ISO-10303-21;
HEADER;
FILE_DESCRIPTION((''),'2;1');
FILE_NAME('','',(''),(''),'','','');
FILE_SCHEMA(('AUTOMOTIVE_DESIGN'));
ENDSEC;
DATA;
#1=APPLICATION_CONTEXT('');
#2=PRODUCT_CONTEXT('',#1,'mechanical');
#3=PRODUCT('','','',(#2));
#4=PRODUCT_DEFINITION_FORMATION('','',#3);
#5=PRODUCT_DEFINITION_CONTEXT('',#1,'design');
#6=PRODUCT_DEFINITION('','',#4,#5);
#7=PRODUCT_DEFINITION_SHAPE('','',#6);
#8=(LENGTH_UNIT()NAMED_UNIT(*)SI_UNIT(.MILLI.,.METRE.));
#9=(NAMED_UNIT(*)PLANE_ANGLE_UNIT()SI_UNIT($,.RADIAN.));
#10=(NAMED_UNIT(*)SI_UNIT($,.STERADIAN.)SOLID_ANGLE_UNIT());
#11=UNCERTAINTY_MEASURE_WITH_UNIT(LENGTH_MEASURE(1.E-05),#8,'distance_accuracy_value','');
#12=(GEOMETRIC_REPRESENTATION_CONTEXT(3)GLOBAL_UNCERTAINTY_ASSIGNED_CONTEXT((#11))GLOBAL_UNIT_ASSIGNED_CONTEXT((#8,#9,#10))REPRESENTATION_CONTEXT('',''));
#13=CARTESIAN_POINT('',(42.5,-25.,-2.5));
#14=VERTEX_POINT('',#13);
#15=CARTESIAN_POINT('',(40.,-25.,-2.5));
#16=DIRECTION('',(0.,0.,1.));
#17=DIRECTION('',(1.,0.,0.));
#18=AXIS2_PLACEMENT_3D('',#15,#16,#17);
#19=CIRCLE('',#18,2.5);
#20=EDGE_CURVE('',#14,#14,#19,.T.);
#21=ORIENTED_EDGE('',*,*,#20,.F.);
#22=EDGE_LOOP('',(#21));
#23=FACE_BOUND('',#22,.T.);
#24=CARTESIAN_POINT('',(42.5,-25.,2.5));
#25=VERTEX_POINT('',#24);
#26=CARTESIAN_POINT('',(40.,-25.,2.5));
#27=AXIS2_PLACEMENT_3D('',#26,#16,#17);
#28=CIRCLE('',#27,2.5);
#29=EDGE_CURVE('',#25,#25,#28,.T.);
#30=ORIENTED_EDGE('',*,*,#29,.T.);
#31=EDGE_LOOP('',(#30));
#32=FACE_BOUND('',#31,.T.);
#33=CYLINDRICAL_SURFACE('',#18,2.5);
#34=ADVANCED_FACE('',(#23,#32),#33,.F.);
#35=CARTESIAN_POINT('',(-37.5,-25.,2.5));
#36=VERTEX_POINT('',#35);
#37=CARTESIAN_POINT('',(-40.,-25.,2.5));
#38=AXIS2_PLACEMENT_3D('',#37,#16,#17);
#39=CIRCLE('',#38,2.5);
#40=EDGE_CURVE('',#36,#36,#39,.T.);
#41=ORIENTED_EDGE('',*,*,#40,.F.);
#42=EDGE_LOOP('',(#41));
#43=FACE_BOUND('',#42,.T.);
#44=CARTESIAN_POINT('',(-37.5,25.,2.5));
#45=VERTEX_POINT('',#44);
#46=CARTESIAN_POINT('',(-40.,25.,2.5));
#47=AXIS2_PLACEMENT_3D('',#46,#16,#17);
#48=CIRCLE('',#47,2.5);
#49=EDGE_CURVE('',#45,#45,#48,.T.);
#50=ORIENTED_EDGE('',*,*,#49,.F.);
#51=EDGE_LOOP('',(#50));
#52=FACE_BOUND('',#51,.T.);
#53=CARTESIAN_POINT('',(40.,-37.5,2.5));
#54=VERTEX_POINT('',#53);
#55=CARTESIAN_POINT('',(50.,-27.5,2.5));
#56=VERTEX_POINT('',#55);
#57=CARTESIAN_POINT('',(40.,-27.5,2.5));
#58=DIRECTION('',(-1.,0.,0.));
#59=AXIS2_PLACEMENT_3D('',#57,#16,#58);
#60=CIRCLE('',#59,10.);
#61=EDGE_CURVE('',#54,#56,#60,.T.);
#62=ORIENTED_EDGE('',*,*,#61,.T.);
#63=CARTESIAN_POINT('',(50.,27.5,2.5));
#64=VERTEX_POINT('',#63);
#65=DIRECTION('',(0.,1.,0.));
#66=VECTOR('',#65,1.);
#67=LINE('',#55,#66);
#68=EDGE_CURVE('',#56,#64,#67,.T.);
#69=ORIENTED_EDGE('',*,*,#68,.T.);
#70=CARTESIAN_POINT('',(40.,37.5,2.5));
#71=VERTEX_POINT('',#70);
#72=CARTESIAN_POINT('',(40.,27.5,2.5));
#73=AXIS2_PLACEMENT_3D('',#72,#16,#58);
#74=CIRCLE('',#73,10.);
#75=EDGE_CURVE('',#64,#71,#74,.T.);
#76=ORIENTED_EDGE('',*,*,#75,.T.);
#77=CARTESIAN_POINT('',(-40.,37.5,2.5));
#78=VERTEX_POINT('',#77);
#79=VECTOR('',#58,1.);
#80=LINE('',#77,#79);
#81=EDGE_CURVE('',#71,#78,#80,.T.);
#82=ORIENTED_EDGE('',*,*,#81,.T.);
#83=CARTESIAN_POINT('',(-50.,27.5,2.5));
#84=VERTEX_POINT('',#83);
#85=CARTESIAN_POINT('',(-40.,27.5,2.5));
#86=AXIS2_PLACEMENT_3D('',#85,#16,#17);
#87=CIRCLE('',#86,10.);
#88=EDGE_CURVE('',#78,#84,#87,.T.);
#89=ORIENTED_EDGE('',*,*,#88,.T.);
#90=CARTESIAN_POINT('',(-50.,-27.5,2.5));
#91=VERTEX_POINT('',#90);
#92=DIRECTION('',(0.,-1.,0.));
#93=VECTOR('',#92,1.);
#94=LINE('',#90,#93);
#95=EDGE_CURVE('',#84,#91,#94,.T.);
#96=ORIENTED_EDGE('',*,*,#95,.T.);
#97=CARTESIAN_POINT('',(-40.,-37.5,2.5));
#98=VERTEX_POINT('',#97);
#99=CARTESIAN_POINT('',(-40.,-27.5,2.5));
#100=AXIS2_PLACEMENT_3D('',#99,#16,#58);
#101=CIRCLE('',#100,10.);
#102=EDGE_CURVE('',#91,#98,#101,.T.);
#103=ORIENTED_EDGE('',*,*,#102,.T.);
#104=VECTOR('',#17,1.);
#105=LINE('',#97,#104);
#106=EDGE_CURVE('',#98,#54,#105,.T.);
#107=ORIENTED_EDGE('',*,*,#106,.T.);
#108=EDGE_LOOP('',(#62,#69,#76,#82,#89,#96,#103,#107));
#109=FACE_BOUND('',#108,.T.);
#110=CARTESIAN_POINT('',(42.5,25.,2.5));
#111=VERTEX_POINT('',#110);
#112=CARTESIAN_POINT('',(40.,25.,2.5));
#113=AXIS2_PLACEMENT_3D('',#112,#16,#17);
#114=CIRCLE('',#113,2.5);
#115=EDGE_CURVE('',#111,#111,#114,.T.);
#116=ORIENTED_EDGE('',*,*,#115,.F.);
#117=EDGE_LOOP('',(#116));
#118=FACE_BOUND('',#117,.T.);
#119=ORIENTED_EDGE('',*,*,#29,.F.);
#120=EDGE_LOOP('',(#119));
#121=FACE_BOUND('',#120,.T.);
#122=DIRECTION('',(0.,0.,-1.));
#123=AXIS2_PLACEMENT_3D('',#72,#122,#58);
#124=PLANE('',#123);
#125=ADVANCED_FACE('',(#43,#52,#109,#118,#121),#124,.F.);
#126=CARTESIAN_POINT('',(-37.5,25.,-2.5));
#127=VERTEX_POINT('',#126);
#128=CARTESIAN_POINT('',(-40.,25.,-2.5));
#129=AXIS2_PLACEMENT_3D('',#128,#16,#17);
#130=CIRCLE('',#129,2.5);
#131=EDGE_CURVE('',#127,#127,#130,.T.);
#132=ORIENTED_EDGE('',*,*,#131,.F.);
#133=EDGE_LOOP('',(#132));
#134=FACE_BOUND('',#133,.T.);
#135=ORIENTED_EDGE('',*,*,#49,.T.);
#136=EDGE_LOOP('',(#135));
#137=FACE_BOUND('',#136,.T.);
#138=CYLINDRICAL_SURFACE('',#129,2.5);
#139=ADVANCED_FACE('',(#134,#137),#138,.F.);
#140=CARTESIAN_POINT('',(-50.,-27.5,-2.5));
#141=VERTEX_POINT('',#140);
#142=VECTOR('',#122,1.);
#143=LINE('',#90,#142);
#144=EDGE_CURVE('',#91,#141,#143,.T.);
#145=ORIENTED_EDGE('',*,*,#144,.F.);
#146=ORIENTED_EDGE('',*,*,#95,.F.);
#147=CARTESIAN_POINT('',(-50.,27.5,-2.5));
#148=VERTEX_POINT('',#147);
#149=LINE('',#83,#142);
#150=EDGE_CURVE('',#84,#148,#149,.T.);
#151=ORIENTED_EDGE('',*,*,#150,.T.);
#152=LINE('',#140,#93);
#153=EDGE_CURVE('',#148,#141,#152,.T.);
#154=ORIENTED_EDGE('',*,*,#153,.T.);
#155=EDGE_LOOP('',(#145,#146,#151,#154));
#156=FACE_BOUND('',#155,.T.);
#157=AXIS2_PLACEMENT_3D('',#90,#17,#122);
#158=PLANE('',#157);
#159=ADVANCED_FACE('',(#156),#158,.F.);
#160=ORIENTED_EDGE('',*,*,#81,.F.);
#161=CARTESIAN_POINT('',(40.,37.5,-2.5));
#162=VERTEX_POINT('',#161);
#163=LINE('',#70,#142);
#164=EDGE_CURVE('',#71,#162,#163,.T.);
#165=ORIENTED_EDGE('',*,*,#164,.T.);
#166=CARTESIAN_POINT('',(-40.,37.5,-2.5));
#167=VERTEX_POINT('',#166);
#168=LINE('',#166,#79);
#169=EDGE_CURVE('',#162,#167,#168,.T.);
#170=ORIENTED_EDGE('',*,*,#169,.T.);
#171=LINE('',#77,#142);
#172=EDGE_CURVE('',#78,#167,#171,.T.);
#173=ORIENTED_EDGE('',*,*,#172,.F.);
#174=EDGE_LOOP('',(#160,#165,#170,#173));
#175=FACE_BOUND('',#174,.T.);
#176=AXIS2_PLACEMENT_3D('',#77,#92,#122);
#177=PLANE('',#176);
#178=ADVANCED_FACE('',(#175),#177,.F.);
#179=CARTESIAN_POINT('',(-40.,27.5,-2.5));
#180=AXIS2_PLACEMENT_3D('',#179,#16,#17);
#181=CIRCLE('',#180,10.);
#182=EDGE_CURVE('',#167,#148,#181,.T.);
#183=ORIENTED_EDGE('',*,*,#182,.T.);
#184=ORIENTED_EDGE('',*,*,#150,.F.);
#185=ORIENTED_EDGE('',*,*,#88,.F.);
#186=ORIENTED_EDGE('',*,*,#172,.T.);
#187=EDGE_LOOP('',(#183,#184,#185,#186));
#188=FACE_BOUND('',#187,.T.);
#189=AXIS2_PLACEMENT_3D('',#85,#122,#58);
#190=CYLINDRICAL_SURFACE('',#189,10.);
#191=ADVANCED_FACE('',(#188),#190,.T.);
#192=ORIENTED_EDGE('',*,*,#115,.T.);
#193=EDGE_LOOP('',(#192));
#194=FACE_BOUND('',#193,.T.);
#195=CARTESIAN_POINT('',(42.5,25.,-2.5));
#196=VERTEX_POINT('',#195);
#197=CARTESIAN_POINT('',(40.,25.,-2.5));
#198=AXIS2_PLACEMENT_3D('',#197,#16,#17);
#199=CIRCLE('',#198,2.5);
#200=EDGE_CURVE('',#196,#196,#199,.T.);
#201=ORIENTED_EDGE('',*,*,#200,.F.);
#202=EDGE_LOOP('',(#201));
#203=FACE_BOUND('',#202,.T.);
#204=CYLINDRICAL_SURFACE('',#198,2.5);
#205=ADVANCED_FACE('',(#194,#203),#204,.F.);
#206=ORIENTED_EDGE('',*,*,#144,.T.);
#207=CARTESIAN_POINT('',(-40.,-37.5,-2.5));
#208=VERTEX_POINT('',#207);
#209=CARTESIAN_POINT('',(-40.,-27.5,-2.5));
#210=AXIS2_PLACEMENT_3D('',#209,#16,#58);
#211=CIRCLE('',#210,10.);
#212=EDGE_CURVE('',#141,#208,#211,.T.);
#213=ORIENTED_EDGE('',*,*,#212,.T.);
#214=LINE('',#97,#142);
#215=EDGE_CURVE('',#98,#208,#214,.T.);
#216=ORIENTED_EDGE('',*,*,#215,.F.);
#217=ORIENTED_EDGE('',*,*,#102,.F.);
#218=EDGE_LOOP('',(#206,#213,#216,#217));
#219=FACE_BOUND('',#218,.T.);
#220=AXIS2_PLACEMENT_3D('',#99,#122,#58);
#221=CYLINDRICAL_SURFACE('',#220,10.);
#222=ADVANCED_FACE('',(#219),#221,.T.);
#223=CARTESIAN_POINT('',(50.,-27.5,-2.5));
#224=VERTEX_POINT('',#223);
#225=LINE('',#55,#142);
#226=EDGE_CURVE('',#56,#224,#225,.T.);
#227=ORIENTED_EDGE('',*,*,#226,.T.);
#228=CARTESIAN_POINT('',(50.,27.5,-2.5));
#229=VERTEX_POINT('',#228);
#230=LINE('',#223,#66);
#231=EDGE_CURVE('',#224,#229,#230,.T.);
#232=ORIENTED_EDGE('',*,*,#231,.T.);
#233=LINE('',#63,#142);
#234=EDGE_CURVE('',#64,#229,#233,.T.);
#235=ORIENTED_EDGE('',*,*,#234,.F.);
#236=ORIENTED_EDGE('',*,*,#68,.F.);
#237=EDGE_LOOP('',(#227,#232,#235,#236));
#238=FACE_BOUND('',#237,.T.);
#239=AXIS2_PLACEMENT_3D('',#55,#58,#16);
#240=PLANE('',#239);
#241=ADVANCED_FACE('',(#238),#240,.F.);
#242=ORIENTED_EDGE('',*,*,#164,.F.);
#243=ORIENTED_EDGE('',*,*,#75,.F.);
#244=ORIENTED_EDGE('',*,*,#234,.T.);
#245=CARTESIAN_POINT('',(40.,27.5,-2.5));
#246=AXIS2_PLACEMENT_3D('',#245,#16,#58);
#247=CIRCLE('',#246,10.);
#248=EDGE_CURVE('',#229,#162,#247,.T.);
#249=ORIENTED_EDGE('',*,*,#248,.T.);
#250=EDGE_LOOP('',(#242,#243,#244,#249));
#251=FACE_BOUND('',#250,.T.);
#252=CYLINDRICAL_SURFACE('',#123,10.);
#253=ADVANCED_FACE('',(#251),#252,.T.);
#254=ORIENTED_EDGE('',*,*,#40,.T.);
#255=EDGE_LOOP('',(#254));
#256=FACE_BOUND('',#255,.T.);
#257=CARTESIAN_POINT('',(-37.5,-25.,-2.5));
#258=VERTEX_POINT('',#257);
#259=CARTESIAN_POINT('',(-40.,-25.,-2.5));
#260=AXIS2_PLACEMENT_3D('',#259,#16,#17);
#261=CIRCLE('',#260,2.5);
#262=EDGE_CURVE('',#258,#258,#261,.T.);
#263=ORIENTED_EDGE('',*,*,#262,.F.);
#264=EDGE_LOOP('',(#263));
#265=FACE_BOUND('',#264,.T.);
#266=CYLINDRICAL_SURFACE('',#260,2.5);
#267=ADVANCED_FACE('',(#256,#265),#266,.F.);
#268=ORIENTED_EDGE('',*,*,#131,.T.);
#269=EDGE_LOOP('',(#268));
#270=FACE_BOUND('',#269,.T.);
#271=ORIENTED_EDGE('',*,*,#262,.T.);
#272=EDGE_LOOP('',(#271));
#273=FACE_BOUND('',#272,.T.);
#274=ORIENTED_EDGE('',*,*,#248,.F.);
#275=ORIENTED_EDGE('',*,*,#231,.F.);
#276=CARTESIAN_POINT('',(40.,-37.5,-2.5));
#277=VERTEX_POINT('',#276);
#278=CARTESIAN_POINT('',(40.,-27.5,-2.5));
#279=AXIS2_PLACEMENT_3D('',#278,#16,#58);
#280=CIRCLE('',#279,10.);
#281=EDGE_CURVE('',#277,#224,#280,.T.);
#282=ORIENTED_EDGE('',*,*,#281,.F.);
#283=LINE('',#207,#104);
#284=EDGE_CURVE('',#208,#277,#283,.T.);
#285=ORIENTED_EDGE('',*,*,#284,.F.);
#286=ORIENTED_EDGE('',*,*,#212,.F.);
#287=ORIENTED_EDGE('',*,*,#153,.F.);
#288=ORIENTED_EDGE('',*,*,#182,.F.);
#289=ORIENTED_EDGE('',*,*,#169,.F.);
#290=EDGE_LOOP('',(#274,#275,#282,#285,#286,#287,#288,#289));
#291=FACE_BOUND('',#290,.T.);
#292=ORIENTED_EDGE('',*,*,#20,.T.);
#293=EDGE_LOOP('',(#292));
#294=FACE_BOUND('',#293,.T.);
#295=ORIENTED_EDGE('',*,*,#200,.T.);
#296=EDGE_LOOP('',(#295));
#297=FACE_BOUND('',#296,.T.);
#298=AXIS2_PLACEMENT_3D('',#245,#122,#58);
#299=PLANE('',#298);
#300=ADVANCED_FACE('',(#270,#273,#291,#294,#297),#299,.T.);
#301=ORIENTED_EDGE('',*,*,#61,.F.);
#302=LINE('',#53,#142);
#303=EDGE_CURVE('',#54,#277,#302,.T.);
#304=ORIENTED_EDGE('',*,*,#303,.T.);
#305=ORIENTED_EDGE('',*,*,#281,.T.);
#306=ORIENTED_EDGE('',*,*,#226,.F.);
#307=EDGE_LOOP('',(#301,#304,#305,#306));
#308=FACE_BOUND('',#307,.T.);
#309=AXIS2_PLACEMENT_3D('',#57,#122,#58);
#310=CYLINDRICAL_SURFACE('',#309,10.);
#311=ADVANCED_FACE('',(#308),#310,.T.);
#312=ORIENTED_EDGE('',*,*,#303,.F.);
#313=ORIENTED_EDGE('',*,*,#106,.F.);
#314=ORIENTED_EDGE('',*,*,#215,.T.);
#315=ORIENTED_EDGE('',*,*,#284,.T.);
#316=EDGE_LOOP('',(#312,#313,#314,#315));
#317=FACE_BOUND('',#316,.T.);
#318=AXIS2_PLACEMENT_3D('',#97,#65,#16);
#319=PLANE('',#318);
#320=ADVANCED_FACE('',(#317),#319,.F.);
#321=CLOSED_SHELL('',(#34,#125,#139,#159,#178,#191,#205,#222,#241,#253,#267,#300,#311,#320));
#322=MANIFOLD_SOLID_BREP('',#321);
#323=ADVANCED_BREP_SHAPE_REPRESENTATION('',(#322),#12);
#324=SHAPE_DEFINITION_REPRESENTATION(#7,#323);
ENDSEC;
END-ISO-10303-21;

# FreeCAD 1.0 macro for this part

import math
import FreeCAD as App
import Part
import Sketcher
from FreeCAD import Vector

doc = App.newDocument("Part")
body = doc.addObject("PartDesign::Body", "Body")

sketch1 = body.newObject("Sketcher::SketchObject", "Sketch")
sketch1.AttachmentSupport = (doc.getObject("XY_Plane"), [""])
sketch1.MapMode = "FlatFace"
sketch1.addGeometry(Part.LineSegment(Vector(-40, -38, 0), Vector(40, -38, 0)), False)
sketch1.addGeometry(Part.ArcOfCircle(Part.Circle(Vector(40, -28, 0), Vector(0, 0, 1), 10), math.radians(-90), math.radians(0)), False)
sketch1.addGeometry(Part.LineSegment(Vector(50, -28, 0), Vector(50, 28, 0)), False)
sketch1.addGeometry(Part.ArcOfCircle(Part.Circle(Vector(40, 28, 0), Vector(0, 0, 1), 10), math.radians(0), math.radians(90)), False)
sketch1.addGeometry(Part.LineSegment(Vector(40, 38, 0), Vector(-40, 38, 0)), False)
sketch1.addGeometry(Part.ArcOfCircle(Part.Circle(Vector(-40, 28, 0), Vector(0, 0, 1), 10), math.radians(90), math.radians(180)), False)
sketch1.addGeometry(Part.LineSegment(Vector(-50, 28, 0), Vector(-50, -28, 0)), False)
sketch1.addGeometry(Part.ArcOfCircle(Part.Circle(Vector(-40, -28, 0), Vector(0, 0, 1), 10), math.radians(180), math.radians(270)), False)
sketch1.addGeometry(Part.Circle(Vector(0, 0, 0), Vector(0, 0, 1), 12), False)
sketch1.addConstraint(Sketcher.Constraint("Tangent", 0, 2, 1, 1))
sketch1.addConstraint(Sketcher.Constraint("Tangent", 1, 2, 2, 1))
sketch1.addConstraint(Sketcher.Constraint("Tangent", 2, 2, 3, 1))
sketch1.addConstraint(Sketcher.Constraint("Tangent", 3, 2, 4, 1))
sketch1.addConstraint(Sketcher.Constraint("Tangent", 4, 2, 5, 1))
sketch1.addConstraint(Sketcher.Constraint("Tangent", 5, 2, 6, 1))
sketch1.addConstraint(Sketcher.Constraint("Tangent", 6, 2, 7, 1))
sketch1.addConstraint(Sketcher.Constraint("Tangent", 7, 2, 0, 1))
sketch1.addConstraint(Sketcher.Constraint("Horizontal", 0))
sketch1.addConstraint(Sketcher.Constraint("Vertical", 2))
sketch1.addConstraint(Sketcher.Constraint("Horizontal", 4))
sketch1.addConstraint(Sketcher.Constraint("Vertical", 6))
sketch1.addConstraint(Sketcher.Constraint("Coincident", 8, 3, -1, 1))
sketch1.addConstraint(Sketcher.Constraint("Equal", 1, 3))
sketch1.addConstraint(Sketcher.Constraint("Equal", 3, 5))
sketch1.addConstraint(Sketcher.Constraint("Equal", 5, 7))
sketch1.addConstraint(Sketcher.Constraint("Symmetric", 1, 3, 5, 3, -1, 1))
sketch1.addConstraint(Sketcher.Constraint("Diameter", 8, 25.0))
sketch1.addConstraint(Sketcher.Constraint("Radius", 1, 10.0))
sketch1.addConstraint(Sketcher.Constraint("DistanceX", 0, 1, 0, 2, 80.0))
sketch1.addConstraint(Sketcher.Constraint("DistanceY", 2, 1, 2, 2, 55.0))
pad1 = body.newObject("PartDesign::Pad", "Pad")
pad1.Profile = sketch1
pad1.Length = 5
pad1.Midplane = True

sketch2 = body.newObject("Sketcher::SketchObject", "Sketch001")
sketch2.AttachmentSupport = (doc.getObject("XY_Plane"), [""])
sketch2.MapMode = "FlatFace"
sketch2.AttachmentOffset = App.Placement(Vector(0, 0, 2.5), App.Rotation())
sketch2.addGeometry(Part.Circle(Vector(40, 25, 0), Vector(0, 0, 1), 2.5), False)
sketch2.addGeometry(Part.Circle(Vector(-40, 25, 0), Vector(0, 0, 1), 2.5), False)
sketch2.addGeometry(Part.Circle(Vector(-40, -25, 0), Vector(0, 0, 1), 2.5), False)
sketch2.addGeometry(Part.Circle(Vector(40, -25, 0), Vector(0, 0, 1), 2.5), False)
sketch2.addConstraint(Sketcher.Constraint("Equal", 0, 1))
sketch2.addConstraint(Sketcher.Constraint("Equal", 1, 2))
sketch2.addConstraint(Sketcher.Constraint("Equal", 2, 3))
sketch2.addConstraint(Sketcher.Constraint("Symmetric", 0, 3, 2, 3, -1, 1))
sketch2.addConstraint(Sketcher.Constraint("Symmetric", 1, 3, 3, 3, -1, 1))
sketch2.addConstraint(Sketcher.Constraint("Symmetric", 0, 3, 1, 3, -2))
sketch2.addConstraint(Sketcher.Constraint("Diameter", 0, 5.0))
sketch2.addConstraint(Sketcher.Constraint("DistanceX", -1, 1, 0, 3, 40.0))
sketch2.addConstraint(Sketcher.Constraint("DistanceY", -1, 1, 0, 3, 25.0))
pocket1 = body.newObject("PartDesign::Pocket", "Pocket")
pocket1.Profile = sketch2
pocket1.Type = "ThroughAll"

sketch3 = body.newObject("Sketcher::SketchObject", "Sketch002")
sketch3.AttachmentSupport = (doc.getObject("XY_Plane"), [""])
sketch3.MapMode = "FlatFace"
sketch3.addGeometry(Part.Circle(Vector(0, 0, 0), Vector(0, 0, 1), 12), False)
sketch3.addConstraint(Sketcher.Constraint("Coincident", 0, 3, -1, 1))
sketch3.addConstraint(Sketcher.Constraint("Diameter", 0, 25.0))
pad2 = body.newObject("PartDesign::Pad", "Pad001")
pad2.Profile = sketch3
pad2.Length = 5
pad2.Midplane = True

doc.recompute()
